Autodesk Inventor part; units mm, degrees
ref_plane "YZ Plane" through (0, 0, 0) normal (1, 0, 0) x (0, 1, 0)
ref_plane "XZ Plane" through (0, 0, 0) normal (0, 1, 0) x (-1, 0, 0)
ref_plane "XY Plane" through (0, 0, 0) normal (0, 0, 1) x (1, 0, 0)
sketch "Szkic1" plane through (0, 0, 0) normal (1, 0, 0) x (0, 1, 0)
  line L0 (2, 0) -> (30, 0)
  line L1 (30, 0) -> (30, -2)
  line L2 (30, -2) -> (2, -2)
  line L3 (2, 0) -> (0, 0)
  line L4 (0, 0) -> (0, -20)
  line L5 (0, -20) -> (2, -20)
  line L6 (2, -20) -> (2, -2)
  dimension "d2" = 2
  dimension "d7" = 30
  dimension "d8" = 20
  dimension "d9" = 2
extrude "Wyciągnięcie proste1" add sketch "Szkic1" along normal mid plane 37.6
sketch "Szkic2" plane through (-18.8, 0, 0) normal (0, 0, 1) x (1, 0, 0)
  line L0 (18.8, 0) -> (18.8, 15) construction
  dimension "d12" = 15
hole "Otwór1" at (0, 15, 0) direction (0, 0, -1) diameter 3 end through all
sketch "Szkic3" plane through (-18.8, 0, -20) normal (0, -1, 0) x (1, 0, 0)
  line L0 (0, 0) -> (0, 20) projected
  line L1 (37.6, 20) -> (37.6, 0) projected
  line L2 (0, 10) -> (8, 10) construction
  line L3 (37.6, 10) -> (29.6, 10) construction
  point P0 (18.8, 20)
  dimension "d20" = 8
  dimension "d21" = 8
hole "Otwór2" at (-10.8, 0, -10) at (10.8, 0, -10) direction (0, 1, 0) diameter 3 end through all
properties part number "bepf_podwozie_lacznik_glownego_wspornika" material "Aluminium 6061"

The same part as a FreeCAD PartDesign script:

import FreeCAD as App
import Part
import Sketcher

V = App.Vector
Q = App.Units.Quantity


def add_polygon(sketch, points):
    """Adds a closed chain of lines whose ends are joined by coincident constraints."""
    first, n = sketch.GeometryCount, len(points)
    for a, b in zip(points, points[1:] + points[:1]):
        sketch.addGeometry(Part.LineSegment(App.Vector(*a, 0), App.Vector(*b, 0)), False)
    for i in range(n):
        sketch.addConstraint(Sketcher.Constraint("Coincident", first + i, 2, first + (i + 1) % n, 1))

doc = App.newDocument("Part")
body = doc.addObject("PartDesign::Body", "Body")

sketch1 = doc.addObject("Sketcher::SketchObject", "Sketch")
body.addObject(sketch1)
sketch1.AttachmentSupport = (doc.YZ_Plane, [""])
sketch1.MapMode = "FlatFace"
add_polygon(sketch1, [(30, 0), (0, 0), (0, -20), (2, -20), (2, -2), (30, -2)])
sketch1.addConstraint(Sketcher.Constraint("Horizontal", 0))
sketch1.addConstraint(Sketcher.Constraint("Vertical", 1))
sketch1.addConstraint(Sketcher.Constraint("Horizontal", 2))
sketch1.addConstraint(Sketcher.Constraint("Vertical", 3))
sketch1.addConstraint(Sketcher.Constraint("Horizontal", 4))
sketch1.addConstraint(Sketcher.Constraint("Vertical", 5))
sketch1.addConstraint(Sketcher.Constraint("Coincident", 0, 2, -1, 1))
sketch1.addConstraint(Sketcher.Constraint("Equal", 2, 5))
sketch1.addConstraint(Sketcher.Constraint("DistanceX", 0, 2, 0, 1, Q("30 mm")))
sketch1.addConstraint(Sketcher.Constraint("DistanceX", 2, 1, 2, 2, Q("2 mm")))
sketch1.addConstraint(Sketcher.Constraint("DistanceY", 1, 2, 1, 1, Q("20 mm")))
pad1 = doc.addObject("PartDesign::Pad", "Pad")
body.addObject(pad1)
pad1.Profile = sketch1
pad1.Length = 37.6
pad1.Midplane = True

sketch2 = doc.addObject("Sketcher::SketchObject", "Sketch001")
body.addObject(sketch2)
sketch2.AttachmentSupport = (doc.XY_Plane, [""])
sketch2.MapMode = "FlatFace"
sketch2.addGeometry(Part.Circle(V(0, 15, 0), V(0, 0, 1), 1.5), False)
sketch2.addConstraint(Sketcher.Constraint("PointOnObject", 0, 3, -2))
sketch2.addConstraint(Sketcher.Constraint("Diameter", 0, Q("3 mm")))
sketch2.addConstraint(Sketcher.Constraint("DistanceY", -1, 1, 0, 3, Q("15 mm")))
doc.recompute()
hole = doc.addObject("PartDesign::Hole", "Hole")
body.addObject(hole)
hole.Profile = sketch2
hole.ThreadType = "None"
hole.Diameter = 3
hole.DepthType = "ThroughAll"

sketch3 = doc.addObject("Sketcher::SketchObject", "Sketch002")
body.addObject(sketch3)
sketch3.AttachmentSupport = (doc.XZ_Plane, [""])
sketch3.MapMode = "FlatFace"
sketch3.addGeometry(Part.Circle(V(-10.8, -10, 0), V(0, 0, 1), 1.5), False)
sketch3.addGeometry(Part.Circle(V(10.8, -10, 0), V(0, 0, 1), 1.5), False)
sketch3.addConstraint(Sketcher.Constraint("Equal", 0, 1))
sketch3.addConstraint(Sketcher.Constraint("Symmetric", 0, 3, 1, 3, -2))
sketch3.addConstraint(Sketcher.Constraint("Diameter", 0, Q("3 mm")))
sketch3.addConstraint(Sketcher.Constraint("DistanceY", 0, 3, -1, 1, Q("10 mm")))
sketch3.addConstraint(Sketcher.Constraint("DistanceX", 0, 3, -1, 1, Q("10.8 mm")))
doc.recompute()
hole2 = doc.addObject("PartDesign::Hole", "Hole001")
body.addObject(hole2)
hole2.Profile = sketch3
hole2.ThreadType = "None"
hole2.Diameter = 3
hole2.DepthType = "ThroughAll"

doc.recompute()
